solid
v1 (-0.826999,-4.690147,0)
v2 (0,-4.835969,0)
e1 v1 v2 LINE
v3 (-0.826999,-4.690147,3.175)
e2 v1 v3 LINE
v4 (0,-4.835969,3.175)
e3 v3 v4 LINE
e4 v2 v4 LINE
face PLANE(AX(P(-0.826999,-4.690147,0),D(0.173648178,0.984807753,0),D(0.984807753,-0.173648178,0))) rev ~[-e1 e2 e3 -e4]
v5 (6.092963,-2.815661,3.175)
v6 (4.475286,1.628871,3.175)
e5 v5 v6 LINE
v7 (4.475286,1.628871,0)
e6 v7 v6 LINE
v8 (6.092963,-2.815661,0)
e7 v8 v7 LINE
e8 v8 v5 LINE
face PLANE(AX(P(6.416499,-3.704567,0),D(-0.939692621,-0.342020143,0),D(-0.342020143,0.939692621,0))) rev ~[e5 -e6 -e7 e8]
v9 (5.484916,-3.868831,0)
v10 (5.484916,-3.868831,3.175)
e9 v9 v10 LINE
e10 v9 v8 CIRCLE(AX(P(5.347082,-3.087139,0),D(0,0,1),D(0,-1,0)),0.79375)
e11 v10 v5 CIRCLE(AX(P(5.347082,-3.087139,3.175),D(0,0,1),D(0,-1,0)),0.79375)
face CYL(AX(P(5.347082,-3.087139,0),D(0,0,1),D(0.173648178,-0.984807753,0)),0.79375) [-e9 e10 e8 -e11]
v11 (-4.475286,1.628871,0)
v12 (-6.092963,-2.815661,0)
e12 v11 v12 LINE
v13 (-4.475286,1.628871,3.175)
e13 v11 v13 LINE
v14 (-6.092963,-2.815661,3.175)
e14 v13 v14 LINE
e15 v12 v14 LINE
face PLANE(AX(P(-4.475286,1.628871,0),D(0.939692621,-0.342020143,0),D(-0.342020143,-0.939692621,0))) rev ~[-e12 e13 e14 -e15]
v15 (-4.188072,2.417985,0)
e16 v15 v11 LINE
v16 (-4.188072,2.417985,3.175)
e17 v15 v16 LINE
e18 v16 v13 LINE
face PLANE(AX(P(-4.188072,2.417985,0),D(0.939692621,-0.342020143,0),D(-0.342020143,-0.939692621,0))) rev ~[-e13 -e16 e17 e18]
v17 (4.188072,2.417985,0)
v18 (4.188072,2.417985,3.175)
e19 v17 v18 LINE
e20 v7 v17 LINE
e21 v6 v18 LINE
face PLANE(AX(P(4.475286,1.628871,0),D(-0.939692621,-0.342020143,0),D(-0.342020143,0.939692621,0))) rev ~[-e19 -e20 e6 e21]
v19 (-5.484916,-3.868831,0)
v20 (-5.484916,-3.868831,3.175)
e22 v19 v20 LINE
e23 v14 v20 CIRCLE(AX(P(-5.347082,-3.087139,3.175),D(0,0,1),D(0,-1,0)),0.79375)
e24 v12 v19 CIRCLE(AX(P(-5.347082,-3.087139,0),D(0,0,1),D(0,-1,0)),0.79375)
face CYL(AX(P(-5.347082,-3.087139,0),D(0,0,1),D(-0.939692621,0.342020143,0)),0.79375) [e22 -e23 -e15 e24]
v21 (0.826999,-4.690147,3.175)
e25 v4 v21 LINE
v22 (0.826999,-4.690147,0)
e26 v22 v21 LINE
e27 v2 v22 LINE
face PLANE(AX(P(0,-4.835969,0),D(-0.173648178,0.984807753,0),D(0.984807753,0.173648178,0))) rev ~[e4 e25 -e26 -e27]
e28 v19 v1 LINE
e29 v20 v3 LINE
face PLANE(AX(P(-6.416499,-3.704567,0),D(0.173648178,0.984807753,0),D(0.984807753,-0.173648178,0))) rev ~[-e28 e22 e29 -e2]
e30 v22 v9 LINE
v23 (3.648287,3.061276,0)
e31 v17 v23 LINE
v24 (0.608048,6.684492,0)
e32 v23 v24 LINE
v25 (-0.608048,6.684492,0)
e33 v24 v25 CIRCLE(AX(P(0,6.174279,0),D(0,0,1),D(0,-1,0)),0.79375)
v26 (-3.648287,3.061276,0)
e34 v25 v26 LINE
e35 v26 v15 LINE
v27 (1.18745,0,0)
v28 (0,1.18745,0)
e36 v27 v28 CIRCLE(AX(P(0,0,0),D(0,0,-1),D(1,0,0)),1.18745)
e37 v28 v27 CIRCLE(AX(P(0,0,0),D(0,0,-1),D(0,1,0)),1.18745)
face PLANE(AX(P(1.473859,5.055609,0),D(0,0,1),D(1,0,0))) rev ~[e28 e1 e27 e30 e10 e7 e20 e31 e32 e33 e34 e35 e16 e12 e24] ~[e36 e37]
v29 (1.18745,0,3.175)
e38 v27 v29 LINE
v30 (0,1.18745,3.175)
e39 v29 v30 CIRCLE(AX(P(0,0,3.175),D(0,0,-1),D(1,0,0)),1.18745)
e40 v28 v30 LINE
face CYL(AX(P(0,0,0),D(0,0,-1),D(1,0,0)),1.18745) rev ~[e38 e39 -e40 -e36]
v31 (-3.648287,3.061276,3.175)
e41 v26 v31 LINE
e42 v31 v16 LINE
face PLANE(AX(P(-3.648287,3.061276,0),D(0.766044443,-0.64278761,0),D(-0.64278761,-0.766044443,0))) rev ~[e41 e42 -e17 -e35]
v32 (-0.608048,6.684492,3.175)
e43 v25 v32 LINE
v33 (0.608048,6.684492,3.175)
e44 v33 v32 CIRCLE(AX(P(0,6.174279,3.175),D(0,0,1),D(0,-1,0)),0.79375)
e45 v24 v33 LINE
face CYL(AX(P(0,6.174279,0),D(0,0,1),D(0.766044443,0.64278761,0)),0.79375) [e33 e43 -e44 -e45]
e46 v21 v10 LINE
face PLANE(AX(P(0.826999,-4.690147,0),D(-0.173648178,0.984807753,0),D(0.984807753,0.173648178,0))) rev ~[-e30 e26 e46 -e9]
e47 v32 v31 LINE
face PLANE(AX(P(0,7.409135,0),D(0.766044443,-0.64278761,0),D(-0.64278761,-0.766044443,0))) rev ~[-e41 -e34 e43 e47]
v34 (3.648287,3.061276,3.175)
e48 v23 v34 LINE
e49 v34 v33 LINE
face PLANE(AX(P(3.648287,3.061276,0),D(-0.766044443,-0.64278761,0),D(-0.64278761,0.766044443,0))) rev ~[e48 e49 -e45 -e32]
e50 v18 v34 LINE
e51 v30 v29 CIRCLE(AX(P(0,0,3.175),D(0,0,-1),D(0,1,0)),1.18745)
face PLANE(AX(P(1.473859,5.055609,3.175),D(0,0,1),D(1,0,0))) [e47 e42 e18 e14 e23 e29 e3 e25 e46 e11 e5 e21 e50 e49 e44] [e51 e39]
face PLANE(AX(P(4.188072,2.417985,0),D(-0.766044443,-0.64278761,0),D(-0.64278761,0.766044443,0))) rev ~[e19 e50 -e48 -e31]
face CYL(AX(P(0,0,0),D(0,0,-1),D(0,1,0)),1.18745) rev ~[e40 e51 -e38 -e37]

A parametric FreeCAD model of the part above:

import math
import FreeCAD as App
import Part
import Sketcher

V = App.Vector
Q = App.Units.Quantity


def edges_at(feature, points):
    """Names of the edges that pass closest to the given points."""
    edges = feature.Shape.Edges
    near = lambda p: min(range(len(edges)), key=lambda i: edges[i].distToShape(Part.Vertex(*p))[0])
    return sorted({f"Edge{near(p) + 1}" for p in points})


def add_polygon(sketch, points):
    """Adds a closed chain of lines whose ends are joined by coincident constraints."""
    first, n = sketch.GeometryCount, len(points)
    for a, b in zip(points, points[1:] + points[:1]):
        sketch.addGeometry(Part.LineSegment(App.Vector(*a, 0), App.Vector(*b, 0)), False)
    for i in range(n):
        sketch.addConstraint(Sketcher.Constraint("Coincident", first + i, 2, first + (i + 1) % n, 1))

doc = App.newDocument("Part")
body = doc.addObject("PartDesign::Body", "Body")

# Sketch on XY plane
sketch1 = doc.addObject("Sketcher::SketchObject", "Sketch")
body.addObject(sketch1)
sketch1.AttachmentSupport = (doc.XY_Plane, [""])
sketch1.MapMode = "FlatFace"
add_polygon(sketch1, [(3.648287, 3.061276), (0, 7.409135), (-3.648287, 3.061276), (-4.188072, 2.417985), (-4.475286, 1.628871), (-6.416499, -3.704567), (-0.826999, -4.690147), (0, -4.835969), (0.826999, -4.690147), (6.416499, -3.704567), (4.475286, 1.628871), (4.188072, 2.417985)])  # lines 0-11
sketch1.addGeometry(Part.ArcOfCircle(Part.Circle(V(0, 0, 0), V(0, 0, 1), 1.18745), math.radians(0), math.radians(90)), False)  # 12
sketch1.addGeometry(Part.ArcOfCircle(Part.Circle(V(0, 0, 0), V(0, 0, 1), 1.18745), math.radians(90), math.radians(360)), False)  # 13
sketch1.addConstraint(Sketcher.Constraint("Tangent", 12, 1, 13, 2))
sketch1.addConstraint(Sketcher.Constraint("Coincident", 13, 1, 12, 2))
sketch1.addConstraint(Sketcher.Constraint("Coincident", 12, 3, -1, 1))
sketch1.addConstraint(Sketcher.Constraint("Symmetric", 5, 2, 7, 2, -2))
sketch1.addConstraint(Sketcher.Constraint("Symmetric", 4, 2, 8, 2, -2))
sketch1.addConstraint(Sketcher.Constraint("Symmetric", 3, 2, 9, 2, -2))
sketch1.addConstraint(Sketcher.Constraint("Symmetric", 2, 2, 10, 2, -2))
sketch1.addConstraint(Sketcher.Constraint("Symmetric", 1, 2, 11, 2, -2))
sketch1.addConstraint(Sketcher.Constraint("PointOnObject", 0, 2, -2))
sketch1.addConstraint(Sketcher.Constraint("PointOnObject", 6, 2, -2))
sketch1.addConstraint(Sketcher.Constraint("PointOnObject", 12, 1, -1))
sketch1.addConstraint(Sketcher.Constraint("PointOnObject", 13, 1, -2))
sketch1.addConstraint(Sketcher.Constraint("Parallel", 1, 2))
sketch1.addConstraint(Sketcher.Constraint("Parallel", 3, 4))
sketch1.addConstraint(Sketcher.Constraint("Parallel", 5, 6))
sketch1.addConstraint(Sketcher.Constraint("Equal", 2, 3))
sketch1.addConstraint(Sketcher.Constraint("Equal", 1, 4))
sketch1.addConstraint(Sketcher.Constraint("Equal", 4, 5))
sketch1.addConstraint(Sketcher.Constraint("Equal", 3, 6))
sketch1.addConstraint(Sketcher.Constraint("Angle", 0, Q("130 deg")))
sketch1.addConstraint(Sketcher.Constraint("Angle", 3, Q("-110 deg")))
sketch1.addConstraint(Sketcher.Constraint("Radius", 12, Q("1.18745 mm")))
sketch1.addConstraint(Sketcher.Constraint("DistanceX", 4, 2, -1, 1, Q("6.416499 mm")))
sketch1.addConstraint(Sketcher.Constraint("DistanceX", 5, 2, -1, 1, Q("0.826999 mm")))
sketch1.addConstraint(Sketcher.Constraint("DistanceY", -1, 1, 3, 2, Q("1.628871 mm")))
pad1 = doc.addObject("PartDesign::Pad", "Pad")
body.addObject(pad1)
pad1.Profile = sketch1
pad1.Length = Q("0.125 in")
doc.recompute()

fillet = doc.addObject("PartDesign::Fillet", "Fillet")
body.addObject(fillet)
fillet.Base = (pad1, edges_at(pad1, [(0, 7.409, 1.587), (-6.416, -3.705, 1.587), (6.416, -3.705, 1.587)]))
fillet.Radius = Q("0.03125 in")

doc.recompute()
